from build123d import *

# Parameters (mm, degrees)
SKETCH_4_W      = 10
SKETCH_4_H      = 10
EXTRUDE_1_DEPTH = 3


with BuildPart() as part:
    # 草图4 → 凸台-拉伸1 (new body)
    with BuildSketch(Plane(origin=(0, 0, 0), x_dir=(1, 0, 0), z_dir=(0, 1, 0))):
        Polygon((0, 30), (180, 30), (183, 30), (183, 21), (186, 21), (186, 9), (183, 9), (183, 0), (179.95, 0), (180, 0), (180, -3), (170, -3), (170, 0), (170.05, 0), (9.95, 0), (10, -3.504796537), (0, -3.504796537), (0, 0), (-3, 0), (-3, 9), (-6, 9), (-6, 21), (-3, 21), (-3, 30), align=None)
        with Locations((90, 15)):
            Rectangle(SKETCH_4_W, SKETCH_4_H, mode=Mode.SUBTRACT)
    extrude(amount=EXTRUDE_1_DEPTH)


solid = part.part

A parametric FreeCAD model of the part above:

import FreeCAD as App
import Part
import Sketcher
Q = App.Units.Quantity


def add_polygon(sketch, points):
    """Adds a closed chain of lines whose ends are joined by coincident constraints."""
    first, n = sketch.GeometryCount, len(points)
    for a, b in zip(points, points[1:] + points[:1]):
        sketch.addGeometry(Part.LineSegment(App.Vector(*a, 0), App.Vector(*b, 0)), False)
    for i in range(n):
        sketch.addConstraint(Sketcher.Constraint("Coincident", first + i, 2, first + (i + 1) % n, 1))

doc = App.newDocument("Part")
body = doc.addObject("PartDesign::Body", "Body")

# Sketch on XZ plane
sketch1 = body.newObject("Sketcher::SketchObject", "Sketch")
sketch1.AttachmentSupport = (doc.getObject("XZ_Plane"), [""])
sketch1.MapMode = "FlatFace"
add_polygon(sketch1, [(183, -30), (-3, -30), (-3, -21), (-6, -21), (-6, -9), (-3, -9), (-3, 0), (0, 0), (0, 3.5), (10, 3.5), (9.9, 0), (170, 0), (170, 3), (180, 3), (180, 0), (183, 0), (183, -9), (186, -9), (186, -21), (183, -21)])  # lines 0-19
add_polygon(sketch1, [(85, -10), (85, -20), (95, -20), (95, -10)])  # lines 20-23
sketch1.addConstraint([
    Sketcher.Constraint("Horizontal", 0),
    Sketcher.Constraint("Vertical", 1),
    Sketcher.Constraint("Horizontal", 2),
    Sketcher.Constraint("Vertical", 3),
    Sketcher.Constraint("Horizontal", 4),
    Sketcher.Constraint("Vertical", 5),
    Sketcher.Constraint("Horizontal", 6),
    Sketcher.Constraint("Vertical", 7),
    Sketcher.Constraint("Horizontal", 8),
    Sketcher.Constraint("Horizontal", 10),
    Sketcher.Constraint("Vertical", 11),
    Sketcher.Constraint("Horizontal", 12),
    Sketcher.Constraint("Vertical", 13),
    Sketcher.Constraint("Horizontal", 14),
    Sketcher.Constraint("Vertical", 15),
    Sketcher.Constraint("Horizontal", 16),
    Sketcher.Constraint("Vertical", 17),
    Sketcher.Constraint("Horizontal", 18),
    Sketcher.Constraint("Vertical", 19),
    Sketcher.Constraint("Vertical", 20),
    Sketcher.Constraint("Horizontal", 21),
    Sketcher.Constraint("Vertical", 22),
    Sketcher.Constraint("Horizontal", 23),
    Sketcher.Constraint("Coincident", 6, 2, -1, 1),
    Sketcher.Constraint("PointOnObject", 9, 2, -1),
    Sketcher.Constraint("PointOnObject", 13, 2, -1),
    Sketcher.Constraint("Horizontal", 4, 2, 15, 2),
    Sketcher.Constraint("Horizontal", 2, 2, 17, 2),
    Sketcher.Constraint("Vertical", 1, 2, 4, 2),
    Sketcher.Constraint("Vertical", 15, 2, 18, 2),
    Sketcher.Constraint("Equal", 4, 6),
    Sketcher.Constraint("Equal", 8, 12),
    Sketcher.Constraint("Equal", 6, 14),
    Sketcher.Constraint("Equal", 14, 16),
    Sketcher.Constraint("Equal", 12, 21),
    Sketcher.Constraint("Equal", 1, 5),
    Sketcher.Constraint("Equal", 18, 11),
    Sketcher.Constraint("Equal", 23, 20),
    Sketcher.Constraint("DistanceX", 0, 2, 0, 1, Q("186 mm")),
    Sketcher.Constraint("DistanceX", 2, 2, 2, 1, Q("3 mm")),
    Sketcher.Constraint("DistanceX", 8, 1, 8, 2, Q("10 mm")),
    Sketcher.Constraint("DistanceY", 1, 1, 1, 2, Q("9 mm")),
    Sketcher.Constraint("DistanceY", 3, 1, 3, 2, Q("12 mm")),
    Sketcher.Constraint("DistanceX", -1, 1, 20, 2, Q("85 mm")),
    Sketcher.Constraint("DistanceY", 20, 2, -1, 1, Q("20 mm")),
    Sketcher.Constraint("DistanceX", 10, 1, 10, 2, Q("160.05 mm")),
    Sketcher.Constraint("DistanceY", 7, 1, 7, 2, Q("3.504797 mm")),
])
pad1 = body.newObject("PartDesign::Pad", "Pad")
pad1.Profile = sketch1
pad1.Length = 3
pad1.Reversed = True

doc.recompute()
